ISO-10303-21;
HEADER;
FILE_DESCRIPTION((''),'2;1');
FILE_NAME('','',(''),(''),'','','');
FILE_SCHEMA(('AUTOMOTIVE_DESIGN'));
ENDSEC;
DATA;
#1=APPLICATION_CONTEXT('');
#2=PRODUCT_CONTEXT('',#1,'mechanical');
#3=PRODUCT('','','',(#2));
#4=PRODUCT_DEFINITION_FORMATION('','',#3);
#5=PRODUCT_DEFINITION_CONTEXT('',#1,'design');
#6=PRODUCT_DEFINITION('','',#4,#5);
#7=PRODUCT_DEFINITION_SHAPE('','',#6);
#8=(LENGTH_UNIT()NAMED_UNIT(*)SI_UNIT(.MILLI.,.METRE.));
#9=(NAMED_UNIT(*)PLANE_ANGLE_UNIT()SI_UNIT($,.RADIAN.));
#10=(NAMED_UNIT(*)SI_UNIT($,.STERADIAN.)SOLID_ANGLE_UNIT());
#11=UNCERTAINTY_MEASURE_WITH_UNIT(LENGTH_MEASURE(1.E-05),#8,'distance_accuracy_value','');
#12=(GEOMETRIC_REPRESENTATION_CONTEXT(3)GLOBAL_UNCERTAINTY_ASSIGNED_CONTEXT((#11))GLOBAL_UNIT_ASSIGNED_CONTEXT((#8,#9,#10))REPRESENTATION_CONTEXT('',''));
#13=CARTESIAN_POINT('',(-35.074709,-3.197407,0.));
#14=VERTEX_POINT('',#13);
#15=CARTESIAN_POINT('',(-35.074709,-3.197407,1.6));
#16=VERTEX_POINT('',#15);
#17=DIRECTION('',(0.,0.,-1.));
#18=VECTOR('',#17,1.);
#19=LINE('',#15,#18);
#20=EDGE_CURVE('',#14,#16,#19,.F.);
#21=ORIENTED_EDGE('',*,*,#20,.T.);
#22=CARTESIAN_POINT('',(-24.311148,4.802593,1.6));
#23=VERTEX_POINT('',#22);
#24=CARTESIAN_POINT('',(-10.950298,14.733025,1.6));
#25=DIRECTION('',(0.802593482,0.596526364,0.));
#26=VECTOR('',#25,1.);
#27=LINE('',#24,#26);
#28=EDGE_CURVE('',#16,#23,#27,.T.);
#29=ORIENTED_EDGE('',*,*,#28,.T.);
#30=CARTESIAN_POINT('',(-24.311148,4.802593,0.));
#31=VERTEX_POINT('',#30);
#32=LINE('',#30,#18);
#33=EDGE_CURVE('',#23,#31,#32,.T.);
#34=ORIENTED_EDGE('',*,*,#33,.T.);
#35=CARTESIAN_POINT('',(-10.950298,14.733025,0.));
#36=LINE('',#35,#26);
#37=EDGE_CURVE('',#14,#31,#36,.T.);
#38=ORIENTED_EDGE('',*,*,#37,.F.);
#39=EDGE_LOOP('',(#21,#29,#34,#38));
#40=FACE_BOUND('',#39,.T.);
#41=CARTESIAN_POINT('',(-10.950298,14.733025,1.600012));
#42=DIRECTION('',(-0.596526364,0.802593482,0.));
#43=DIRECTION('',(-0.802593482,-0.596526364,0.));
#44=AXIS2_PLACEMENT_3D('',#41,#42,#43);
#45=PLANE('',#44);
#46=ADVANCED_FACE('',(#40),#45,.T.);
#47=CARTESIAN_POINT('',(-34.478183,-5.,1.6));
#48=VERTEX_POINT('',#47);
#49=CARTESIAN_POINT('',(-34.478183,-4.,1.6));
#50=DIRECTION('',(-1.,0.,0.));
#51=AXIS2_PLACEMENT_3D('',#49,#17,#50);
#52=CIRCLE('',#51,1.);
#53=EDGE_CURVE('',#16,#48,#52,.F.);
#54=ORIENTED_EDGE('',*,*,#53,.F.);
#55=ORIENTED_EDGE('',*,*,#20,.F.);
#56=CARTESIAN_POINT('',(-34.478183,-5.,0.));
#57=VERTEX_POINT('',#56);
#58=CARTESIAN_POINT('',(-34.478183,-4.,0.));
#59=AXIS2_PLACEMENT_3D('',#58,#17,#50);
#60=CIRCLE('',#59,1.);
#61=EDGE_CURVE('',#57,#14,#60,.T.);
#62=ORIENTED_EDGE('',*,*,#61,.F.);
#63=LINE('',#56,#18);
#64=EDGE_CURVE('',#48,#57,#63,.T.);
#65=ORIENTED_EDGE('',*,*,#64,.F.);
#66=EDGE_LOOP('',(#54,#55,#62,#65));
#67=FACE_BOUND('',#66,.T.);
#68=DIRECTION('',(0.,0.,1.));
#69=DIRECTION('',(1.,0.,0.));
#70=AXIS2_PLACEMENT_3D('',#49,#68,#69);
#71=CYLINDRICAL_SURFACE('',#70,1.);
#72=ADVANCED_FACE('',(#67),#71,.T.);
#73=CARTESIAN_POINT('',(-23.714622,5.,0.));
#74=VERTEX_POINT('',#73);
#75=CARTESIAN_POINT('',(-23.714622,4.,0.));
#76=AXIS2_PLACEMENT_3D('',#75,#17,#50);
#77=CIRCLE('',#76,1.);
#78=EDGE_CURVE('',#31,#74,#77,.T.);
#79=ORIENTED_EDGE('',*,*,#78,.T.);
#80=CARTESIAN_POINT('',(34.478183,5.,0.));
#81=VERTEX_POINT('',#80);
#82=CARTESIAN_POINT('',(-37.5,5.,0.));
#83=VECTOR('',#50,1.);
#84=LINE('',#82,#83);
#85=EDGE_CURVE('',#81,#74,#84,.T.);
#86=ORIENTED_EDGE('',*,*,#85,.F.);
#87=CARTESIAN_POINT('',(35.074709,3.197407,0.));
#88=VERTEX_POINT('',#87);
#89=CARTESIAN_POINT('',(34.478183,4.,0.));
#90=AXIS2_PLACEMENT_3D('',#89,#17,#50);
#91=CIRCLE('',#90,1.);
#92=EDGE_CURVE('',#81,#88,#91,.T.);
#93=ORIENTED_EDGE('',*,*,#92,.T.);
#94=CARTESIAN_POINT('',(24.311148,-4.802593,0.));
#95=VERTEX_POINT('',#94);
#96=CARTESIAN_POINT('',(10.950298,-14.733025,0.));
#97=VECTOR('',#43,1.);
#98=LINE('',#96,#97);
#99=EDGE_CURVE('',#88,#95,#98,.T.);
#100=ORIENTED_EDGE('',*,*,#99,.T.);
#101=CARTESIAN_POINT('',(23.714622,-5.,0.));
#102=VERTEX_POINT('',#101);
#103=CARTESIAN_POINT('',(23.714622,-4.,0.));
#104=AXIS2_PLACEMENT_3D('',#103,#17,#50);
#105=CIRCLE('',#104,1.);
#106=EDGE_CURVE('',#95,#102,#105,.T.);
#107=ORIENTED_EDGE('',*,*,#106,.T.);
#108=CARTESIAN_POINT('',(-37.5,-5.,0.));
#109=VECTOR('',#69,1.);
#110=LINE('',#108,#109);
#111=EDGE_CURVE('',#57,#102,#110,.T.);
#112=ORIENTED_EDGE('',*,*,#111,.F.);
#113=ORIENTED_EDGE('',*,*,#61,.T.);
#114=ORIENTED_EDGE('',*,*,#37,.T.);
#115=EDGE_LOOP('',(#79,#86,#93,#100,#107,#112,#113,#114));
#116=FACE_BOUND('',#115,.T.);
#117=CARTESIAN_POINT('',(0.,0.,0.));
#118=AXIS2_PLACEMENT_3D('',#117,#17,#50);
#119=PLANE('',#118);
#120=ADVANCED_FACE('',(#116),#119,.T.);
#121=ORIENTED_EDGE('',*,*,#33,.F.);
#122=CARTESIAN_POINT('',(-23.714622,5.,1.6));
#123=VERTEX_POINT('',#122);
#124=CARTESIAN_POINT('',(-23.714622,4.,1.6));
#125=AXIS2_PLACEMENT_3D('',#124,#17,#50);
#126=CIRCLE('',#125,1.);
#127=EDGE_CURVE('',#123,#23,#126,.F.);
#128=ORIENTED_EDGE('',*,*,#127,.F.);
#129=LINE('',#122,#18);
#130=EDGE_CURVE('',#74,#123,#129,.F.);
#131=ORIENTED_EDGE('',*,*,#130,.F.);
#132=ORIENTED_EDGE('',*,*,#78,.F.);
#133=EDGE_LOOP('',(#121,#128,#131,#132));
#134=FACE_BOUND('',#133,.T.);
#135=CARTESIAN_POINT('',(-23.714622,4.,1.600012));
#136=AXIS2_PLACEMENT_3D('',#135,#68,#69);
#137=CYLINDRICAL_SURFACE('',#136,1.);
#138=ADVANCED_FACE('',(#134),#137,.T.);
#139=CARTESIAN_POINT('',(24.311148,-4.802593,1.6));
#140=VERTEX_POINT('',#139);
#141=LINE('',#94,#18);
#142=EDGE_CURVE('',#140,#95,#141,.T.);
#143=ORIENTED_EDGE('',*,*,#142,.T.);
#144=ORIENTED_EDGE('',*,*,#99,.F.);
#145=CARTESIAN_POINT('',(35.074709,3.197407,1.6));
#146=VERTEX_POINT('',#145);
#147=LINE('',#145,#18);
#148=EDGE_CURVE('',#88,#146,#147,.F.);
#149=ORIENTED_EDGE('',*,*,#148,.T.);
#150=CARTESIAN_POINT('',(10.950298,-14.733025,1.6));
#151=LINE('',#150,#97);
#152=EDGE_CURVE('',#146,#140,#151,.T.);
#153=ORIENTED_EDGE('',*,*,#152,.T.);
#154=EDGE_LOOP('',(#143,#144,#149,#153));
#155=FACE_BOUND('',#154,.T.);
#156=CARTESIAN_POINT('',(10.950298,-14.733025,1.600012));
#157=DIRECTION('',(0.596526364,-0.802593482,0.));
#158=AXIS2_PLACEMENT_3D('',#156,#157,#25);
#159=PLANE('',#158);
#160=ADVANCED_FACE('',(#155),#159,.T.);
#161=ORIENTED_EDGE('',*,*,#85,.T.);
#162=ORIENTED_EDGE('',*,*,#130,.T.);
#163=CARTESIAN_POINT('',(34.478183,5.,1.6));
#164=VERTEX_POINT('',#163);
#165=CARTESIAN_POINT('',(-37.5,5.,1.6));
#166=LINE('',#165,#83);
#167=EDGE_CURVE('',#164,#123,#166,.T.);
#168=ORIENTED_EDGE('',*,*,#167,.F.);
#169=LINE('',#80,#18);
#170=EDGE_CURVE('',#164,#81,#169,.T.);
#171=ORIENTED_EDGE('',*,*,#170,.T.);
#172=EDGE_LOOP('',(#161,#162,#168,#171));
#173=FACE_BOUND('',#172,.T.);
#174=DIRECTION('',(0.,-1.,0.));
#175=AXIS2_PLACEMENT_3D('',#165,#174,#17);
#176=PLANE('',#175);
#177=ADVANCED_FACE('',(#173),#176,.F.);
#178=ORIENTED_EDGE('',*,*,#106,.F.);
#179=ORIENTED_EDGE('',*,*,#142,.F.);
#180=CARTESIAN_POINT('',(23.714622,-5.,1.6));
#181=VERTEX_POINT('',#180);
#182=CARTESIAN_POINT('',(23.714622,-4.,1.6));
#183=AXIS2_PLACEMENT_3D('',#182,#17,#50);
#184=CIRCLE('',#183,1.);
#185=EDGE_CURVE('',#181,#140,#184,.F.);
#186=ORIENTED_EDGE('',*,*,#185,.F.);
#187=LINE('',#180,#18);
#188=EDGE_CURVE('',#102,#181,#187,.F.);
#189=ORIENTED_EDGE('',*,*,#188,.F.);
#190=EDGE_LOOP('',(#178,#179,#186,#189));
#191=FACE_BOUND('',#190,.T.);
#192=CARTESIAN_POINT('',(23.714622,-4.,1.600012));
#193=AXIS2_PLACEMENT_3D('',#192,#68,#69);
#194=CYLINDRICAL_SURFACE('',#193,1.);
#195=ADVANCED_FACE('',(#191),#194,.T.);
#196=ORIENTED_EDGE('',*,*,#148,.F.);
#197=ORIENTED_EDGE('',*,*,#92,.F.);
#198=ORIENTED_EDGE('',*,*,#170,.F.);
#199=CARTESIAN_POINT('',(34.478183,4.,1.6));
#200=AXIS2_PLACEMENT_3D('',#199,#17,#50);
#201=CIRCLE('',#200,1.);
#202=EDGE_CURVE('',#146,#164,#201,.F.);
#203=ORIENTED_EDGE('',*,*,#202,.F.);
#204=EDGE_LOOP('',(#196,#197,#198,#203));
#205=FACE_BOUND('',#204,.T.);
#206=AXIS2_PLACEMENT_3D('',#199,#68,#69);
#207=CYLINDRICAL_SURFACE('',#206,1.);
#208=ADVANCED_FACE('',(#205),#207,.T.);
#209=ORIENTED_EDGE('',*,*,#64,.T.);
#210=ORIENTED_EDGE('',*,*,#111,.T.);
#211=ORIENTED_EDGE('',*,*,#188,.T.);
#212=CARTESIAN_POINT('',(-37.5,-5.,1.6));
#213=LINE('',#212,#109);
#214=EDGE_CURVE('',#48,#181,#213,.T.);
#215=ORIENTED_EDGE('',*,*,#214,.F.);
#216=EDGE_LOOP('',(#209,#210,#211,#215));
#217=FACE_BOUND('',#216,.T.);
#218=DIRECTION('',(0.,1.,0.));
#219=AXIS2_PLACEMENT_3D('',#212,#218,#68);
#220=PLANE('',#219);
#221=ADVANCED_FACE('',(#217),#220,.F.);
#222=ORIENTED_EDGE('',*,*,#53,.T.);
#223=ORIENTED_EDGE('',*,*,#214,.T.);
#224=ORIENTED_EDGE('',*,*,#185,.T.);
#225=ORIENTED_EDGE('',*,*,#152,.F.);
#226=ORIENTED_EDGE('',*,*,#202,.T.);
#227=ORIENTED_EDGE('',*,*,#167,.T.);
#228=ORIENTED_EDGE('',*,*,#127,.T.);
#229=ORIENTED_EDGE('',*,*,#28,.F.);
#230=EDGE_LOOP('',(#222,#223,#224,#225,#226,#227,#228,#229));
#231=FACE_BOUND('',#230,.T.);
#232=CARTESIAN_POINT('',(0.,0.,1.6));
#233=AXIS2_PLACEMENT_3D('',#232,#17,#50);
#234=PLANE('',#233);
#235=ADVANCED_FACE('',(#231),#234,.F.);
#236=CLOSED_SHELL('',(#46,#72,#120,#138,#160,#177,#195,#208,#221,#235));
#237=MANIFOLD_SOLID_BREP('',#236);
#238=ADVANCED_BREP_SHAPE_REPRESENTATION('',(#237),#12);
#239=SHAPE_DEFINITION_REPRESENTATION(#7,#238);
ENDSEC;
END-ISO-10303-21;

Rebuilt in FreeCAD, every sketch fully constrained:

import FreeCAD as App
import Part
import Sketcher

V = App.Vector


def edges_at(feature, points):
    """Names of the edges that pass closest to the given points."""
    edges = feature.Shape.Edges
    near = lambda p: min(range(len(edges)), key=lambda i: edges[i].distToShape(Part.Vertex(*p))[0])
    return sorted({f"Edge{near(p) + 1}" for p in points})


def add_polygon(sketch, points):
    """Adds a closed chain of lines whose ends are joined by coincident constraints."""
    first, n = sketch.GeometryCount, len(points)
    for a, b in zip(points, points[1:] + points[:1]):
        sketch.addGeometry(Part.LineSegment(App.Vector(*a, 0), App.Vector(*b, 0)), False)
    for i in range(n):
        sketch.addConstraint(Sketcher.Constraint("Coincident", first + i, 2, first + (i + 1) % n, 1))

doc = App.newDocument("Part")
body = doc.addObject("PartDesign::Body", "Body")

# Sketch on XY plane
sketch1 = doc.addObject("Sketcher::SketchObject", "Sketch")
body.addObject(sketch1)
sketch1.AttachmentSupport = (doc.XY_Plane, [""])
sketch1.MapMode = "FlatFace"
add_polygon(sketch1, [(-37.5, 5), (-37.5, -5), (37.5, -5), (37.5, 5)])  # lines 0-3
sketch1.addConstraint(Sketcher.Constraint("Vertical", 0))
sketch1.addConstraint(Sketcher.Constraint("Horizontal", 1))
sketch1.addConstraint(Sketcher.Constraint("Vertical", 2))
sketch1.addConstraint(Sketcher.Constraint("Horizontal", 3))
sketch1.addConstraint(Sketcher.Constraint("Symmetric", 0, 2, 2, 2, -1, 1))
sketch1.addConstraint(Sketcher.Constraint("DistanceX", 1, 1, 1, 2, 75.0))
sketch1.addConstraint(Sketcher.Constraint("DistanceY", 0, 2, 0, 1, 10.0))
pad1 = doc.addObject("PartDesign::Pad", "Pad")
body.addObject(pad1)
pad1.Profile = sketch1
pad1.Length = 1.6

# Sketch on XY plane
sketch2 = doc.addObject("Sketcher::SketchObject", "Sketch001")
body.addObject(sketch2)
sketch2.AttachmentSupport = (doc.XY_Plane, [""])
sketch2.MapMode = "FlatFace"
sketch2.AttachmentOffset = App.Placement(V(0, 0, 1.6), App.Rotation())
add_polygon(sketch2, [(37.5, -5), (37.5, 5), (24.045549, -5)])  # lines 0-2
add_polygon(sketch2, [(-37.5, -5), (-24.045549, 5), (-37.5, 5)])  # lines 3-5
sketch2.addConstraint(Sketcher.Constraint("Vertical", 0))
sketch2.addConstraint(Sketcher.Constraint("Horizontal", 2))
sketch2.addConstraint(Sketcher.Constraint("Horizontal", 4))
sketch2.addConstraint(Sketcher.Constraint("Vertical", 5))
sketch2.addConstraint(Sketcher.Constraint("Symmetric", 1, 2, 3, 2, -1, 1))
sketch2.addConstraint(Sketcher.Constraint("Symmetric", 0, 2, 5, 2, -1, 1))
sketch2.addConstraint(Sketcher.Constraint("Horizontal", 0, 2, 3, 2))
sketch2.addConstraint(Sketcher.Constraint("DistanceY", 0, 1, 0, 2, 10.0))
sketch2.addConstraint(Sketcher.Constraint("DistanceX", 4, 2, 0, 2, 75.0))
sketch2.addConstraint(Sketcher.Constraint("DistanceX", 2, 1, 2, 2, 13.454451))
pocket1 = doc.addObject("PartDesign::Pocket", "Pocket")
body.addObject(pocket1)
pocket1.Profile = sketch2
pocket1.Type = "ThroughAll"
pocket1.Midplane = True
doc.recompute()

fillet = doc.addObject("PartDesign::Fillet", "Fillet")
body.addObject(fillet)
fillet.Base = (pocket1, edges_at(pocket1, [
    (24.046, -5, 0.8),
    (-24.046, 5, 0.8),
    (-37.5, -5, 0.8),
    (37.5, 5, 0.8),
]))
fillet.Radius = 1

doc.recompute()
